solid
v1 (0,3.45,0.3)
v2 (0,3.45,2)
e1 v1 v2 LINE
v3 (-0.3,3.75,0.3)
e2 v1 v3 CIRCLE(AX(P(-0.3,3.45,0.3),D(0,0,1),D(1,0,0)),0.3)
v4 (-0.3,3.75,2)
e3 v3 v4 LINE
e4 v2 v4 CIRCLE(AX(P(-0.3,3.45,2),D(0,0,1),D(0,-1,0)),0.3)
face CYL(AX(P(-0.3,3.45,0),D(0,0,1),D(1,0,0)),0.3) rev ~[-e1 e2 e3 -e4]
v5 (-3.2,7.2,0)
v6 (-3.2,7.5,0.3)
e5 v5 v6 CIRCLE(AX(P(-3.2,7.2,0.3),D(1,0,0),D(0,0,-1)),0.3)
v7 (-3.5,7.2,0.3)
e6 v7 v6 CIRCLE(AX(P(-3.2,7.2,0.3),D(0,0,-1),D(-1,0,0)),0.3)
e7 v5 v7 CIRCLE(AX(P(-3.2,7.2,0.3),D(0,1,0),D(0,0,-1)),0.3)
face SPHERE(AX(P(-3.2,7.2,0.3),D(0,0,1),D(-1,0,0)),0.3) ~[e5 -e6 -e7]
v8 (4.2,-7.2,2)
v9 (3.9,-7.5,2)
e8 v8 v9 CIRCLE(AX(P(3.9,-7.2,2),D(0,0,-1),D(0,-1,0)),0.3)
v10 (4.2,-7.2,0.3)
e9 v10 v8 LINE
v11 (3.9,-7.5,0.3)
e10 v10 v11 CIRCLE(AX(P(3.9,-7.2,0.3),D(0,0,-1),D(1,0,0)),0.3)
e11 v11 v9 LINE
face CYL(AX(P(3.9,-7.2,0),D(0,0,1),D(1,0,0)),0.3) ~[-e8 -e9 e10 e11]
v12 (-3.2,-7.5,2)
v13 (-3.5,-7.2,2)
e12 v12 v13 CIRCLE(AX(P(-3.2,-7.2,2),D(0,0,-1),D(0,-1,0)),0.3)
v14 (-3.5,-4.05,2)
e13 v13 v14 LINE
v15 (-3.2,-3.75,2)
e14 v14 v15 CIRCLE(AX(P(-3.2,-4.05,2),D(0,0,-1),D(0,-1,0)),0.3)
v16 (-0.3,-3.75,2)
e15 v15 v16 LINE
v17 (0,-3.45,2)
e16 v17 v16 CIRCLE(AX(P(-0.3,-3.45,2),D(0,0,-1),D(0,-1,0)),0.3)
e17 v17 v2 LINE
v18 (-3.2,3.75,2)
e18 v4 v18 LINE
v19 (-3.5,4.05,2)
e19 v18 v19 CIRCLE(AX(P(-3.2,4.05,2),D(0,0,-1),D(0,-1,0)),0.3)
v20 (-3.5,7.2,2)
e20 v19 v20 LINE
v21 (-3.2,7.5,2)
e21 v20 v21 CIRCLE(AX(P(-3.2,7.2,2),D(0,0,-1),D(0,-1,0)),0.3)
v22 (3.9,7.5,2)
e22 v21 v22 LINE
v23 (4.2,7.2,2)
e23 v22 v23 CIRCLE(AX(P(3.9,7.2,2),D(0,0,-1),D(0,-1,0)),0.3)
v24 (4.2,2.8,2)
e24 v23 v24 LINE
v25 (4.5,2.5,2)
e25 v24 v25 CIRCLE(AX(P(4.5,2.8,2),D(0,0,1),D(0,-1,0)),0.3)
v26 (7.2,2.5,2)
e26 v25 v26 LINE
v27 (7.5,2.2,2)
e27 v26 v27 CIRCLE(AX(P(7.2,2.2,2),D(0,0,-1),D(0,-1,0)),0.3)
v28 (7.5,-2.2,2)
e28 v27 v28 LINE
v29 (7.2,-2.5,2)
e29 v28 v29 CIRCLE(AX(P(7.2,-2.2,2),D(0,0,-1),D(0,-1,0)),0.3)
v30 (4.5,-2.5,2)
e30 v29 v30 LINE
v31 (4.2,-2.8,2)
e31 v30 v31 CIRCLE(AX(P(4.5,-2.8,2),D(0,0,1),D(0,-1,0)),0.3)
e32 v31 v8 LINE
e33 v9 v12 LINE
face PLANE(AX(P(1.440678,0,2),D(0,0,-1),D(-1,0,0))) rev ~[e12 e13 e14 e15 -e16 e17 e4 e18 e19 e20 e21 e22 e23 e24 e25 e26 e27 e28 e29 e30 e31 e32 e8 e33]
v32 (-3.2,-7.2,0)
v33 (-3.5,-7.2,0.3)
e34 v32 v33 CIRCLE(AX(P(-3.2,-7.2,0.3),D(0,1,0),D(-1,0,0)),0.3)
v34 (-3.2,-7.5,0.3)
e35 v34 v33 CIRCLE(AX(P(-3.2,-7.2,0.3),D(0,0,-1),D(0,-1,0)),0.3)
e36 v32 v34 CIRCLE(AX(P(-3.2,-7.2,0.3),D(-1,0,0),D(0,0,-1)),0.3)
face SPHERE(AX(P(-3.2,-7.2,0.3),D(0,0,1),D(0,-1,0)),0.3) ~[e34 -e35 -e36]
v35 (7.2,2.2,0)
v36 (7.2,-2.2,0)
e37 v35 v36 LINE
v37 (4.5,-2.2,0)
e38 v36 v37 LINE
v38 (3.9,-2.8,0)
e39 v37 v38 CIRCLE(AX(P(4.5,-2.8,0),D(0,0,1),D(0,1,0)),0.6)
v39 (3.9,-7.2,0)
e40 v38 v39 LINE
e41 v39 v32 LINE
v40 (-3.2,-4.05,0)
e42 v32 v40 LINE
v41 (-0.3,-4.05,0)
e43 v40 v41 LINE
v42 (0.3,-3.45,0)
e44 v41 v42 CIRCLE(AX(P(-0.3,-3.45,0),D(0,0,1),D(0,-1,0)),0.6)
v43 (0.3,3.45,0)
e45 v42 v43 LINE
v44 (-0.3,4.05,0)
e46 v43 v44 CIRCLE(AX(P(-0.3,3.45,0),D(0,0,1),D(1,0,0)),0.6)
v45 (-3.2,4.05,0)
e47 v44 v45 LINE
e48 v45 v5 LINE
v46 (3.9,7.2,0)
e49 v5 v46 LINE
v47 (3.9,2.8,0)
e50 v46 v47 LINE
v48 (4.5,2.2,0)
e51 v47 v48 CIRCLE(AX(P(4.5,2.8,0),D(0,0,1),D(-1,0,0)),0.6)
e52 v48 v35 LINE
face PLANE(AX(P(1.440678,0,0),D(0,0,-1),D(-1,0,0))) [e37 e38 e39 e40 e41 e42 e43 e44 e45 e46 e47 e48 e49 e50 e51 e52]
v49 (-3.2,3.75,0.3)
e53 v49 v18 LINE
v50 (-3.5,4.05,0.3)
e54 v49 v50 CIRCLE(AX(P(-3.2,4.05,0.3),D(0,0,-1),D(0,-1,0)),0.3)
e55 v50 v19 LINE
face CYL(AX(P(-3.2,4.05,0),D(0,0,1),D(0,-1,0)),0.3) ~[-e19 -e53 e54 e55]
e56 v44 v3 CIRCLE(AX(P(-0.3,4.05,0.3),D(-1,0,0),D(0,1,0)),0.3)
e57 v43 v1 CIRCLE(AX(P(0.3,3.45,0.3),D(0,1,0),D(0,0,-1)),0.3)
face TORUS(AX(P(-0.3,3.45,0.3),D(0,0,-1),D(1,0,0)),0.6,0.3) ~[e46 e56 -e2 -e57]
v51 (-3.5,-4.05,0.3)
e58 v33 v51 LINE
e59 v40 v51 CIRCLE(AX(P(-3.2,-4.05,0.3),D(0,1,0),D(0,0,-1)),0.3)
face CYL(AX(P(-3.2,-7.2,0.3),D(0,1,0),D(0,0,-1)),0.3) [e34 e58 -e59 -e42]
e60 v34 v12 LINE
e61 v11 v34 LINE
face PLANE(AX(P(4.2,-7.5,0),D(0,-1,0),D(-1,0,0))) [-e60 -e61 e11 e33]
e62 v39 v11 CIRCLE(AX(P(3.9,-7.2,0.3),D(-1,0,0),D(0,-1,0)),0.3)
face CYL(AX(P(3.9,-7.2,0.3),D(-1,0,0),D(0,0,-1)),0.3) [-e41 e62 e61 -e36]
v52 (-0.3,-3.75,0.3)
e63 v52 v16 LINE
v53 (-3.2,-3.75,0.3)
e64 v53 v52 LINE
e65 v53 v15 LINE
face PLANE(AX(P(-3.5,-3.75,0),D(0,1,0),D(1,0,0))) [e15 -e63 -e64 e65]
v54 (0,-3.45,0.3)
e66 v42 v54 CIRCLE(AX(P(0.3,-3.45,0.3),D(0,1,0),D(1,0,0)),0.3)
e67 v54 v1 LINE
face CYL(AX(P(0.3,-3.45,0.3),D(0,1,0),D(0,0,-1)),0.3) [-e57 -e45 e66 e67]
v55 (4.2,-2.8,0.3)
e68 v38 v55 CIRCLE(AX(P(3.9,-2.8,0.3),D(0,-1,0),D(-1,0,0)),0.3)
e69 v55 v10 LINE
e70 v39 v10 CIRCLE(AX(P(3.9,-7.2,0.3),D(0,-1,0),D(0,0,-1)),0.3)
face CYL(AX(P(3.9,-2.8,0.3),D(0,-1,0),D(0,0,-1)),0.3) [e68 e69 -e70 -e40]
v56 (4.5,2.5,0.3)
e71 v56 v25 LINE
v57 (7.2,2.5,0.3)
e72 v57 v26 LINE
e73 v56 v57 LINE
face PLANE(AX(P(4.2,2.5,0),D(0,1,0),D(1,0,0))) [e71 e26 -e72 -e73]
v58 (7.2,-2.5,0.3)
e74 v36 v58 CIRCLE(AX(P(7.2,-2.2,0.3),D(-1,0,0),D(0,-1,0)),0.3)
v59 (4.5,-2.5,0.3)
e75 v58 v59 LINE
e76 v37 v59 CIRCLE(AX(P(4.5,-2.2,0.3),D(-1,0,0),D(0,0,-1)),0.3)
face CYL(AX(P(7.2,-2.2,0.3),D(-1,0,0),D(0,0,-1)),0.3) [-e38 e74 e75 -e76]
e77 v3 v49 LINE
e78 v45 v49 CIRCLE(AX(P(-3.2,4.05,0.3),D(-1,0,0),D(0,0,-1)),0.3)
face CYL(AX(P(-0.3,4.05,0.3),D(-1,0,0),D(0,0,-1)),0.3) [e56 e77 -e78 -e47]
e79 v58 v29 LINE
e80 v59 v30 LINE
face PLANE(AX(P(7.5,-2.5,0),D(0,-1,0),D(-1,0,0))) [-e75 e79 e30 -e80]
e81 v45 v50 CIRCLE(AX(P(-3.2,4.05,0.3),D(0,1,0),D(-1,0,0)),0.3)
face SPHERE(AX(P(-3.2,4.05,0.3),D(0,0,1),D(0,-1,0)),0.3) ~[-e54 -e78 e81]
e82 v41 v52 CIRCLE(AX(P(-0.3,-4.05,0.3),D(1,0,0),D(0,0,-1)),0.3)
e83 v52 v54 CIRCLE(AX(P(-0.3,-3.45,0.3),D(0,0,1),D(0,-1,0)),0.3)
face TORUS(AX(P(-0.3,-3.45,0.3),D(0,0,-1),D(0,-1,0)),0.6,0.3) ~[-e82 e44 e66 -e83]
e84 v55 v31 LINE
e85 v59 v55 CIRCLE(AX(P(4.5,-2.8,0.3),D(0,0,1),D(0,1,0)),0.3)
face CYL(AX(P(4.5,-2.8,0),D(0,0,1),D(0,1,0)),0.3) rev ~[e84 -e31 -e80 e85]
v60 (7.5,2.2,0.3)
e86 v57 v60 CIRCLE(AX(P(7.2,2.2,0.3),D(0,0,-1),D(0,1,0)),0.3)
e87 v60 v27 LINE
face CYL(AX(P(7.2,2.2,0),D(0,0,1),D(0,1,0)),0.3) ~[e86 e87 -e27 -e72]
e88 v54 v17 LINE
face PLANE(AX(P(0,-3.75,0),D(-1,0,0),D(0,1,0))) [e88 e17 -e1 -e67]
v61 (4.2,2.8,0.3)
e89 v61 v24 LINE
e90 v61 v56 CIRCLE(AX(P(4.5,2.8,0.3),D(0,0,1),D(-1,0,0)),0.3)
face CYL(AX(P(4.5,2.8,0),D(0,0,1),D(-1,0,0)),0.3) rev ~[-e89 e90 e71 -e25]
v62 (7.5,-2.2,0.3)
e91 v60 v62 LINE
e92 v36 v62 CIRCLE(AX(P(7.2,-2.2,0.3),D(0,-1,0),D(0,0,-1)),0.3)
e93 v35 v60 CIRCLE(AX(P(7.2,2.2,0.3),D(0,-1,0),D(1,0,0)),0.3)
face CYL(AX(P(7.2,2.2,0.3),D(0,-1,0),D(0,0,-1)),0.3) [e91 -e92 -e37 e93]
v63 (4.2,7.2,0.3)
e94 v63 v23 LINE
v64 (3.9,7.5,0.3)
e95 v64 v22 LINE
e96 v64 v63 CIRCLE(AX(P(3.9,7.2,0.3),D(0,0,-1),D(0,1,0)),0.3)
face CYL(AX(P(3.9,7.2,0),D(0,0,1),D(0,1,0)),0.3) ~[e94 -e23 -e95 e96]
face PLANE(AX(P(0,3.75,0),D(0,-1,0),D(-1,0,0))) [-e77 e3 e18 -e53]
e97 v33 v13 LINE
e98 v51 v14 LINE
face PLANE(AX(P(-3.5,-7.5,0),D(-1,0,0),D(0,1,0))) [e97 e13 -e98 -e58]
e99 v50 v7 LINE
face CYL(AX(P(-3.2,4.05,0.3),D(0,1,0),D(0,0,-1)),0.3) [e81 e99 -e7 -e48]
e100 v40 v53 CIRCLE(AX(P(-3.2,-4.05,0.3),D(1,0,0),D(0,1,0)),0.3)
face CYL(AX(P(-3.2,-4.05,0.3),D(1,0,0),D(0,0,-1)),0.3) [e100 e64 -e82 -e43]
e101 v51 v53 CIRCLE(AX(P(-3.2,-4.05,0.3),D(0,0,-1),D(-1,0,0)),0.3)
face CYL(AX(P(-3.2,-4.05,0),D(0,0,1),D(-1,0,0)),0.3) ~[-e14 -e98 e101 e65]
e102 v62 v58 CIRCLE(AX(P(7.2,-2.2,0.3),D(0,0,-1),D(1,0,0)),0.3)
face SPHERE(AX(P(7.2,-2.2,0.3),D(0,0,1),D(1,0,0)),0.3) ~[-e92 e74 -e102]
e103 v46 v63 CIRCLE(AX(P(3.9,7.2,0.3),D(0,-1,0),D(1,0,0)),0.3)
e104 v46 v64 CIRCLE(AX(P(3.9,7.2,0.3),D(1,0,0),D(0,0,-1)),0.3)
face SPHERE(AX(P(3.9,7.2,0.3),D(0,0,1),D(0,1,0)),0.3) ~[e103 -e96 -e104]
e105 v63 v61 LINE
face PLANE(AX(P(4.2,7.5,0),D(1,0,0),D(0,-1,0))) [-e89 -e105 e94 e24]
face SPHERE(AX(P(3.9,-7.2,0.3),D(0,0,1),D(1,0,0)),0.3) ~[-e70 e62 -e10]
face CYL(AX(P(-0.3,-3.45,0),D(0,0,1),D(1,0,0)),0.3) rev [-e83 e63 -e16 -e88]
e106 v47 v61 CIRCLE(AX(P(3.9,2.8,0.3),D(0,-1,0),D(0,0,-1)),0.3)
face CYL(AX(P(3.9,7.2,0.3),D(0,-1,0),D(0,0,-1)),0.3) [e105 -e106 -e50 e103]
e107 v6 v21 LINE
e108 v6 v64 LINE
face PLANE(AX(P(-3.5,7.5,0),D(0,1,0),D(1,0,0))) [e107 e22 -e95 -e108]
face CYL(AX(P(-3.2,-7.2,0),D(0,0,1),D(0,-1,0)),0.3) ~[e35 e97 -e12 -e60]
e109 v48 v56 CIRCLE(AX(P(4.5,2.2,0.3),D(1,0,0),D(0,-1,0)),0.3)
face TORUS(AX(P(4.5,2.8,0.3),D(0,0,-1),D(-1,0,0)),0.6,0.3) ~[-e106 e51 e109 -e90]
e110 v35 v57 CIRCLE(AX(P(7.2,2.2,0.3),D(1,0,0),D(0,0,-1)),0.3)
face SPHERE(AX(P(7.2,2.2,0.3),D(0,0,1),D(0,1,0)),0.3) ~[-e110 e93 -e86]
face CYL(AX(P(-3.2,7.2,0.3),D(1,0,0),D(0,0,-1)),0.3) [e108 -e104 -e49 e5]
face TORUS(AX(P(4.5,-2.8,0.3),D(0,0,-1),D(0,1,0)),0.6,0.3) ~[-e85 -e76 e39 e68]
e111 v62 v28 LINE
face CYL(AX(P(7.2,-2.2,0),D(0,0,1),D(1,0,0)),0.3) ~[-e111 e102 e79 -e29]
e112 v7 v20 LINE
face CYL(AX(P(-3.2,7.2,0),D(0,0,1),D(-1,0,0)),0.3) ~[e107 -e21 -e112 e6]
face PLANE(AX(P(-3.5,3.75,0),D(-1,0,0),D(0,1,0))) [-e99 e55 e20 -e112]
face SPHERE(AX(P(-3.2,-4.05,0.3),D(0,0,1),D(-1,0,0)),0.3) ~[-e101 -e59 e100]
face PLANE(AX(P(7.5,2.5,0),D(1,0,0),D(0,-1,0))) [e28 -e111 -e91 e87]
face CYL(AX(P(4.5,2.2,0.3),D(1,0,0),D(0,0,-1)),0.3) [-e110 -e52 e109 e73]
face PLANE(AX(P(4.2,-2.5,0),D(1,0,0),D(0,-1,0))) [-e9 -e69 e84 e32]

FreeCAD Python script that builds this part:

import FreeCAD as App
import Part
import Sketcher

V = App.Vector
Q = App.Units.Quantity


def edges_at(feature, points):
    """Names of the edges that pass closest to the given points."""
    edges = feature.Shape.Edges
    near = lambda p: min(range(len(edges)), key=lambda i: edges[i].distToShape(Part.Vertex(*p))[0])
    return sorted({f"Edge{near(p) + 1}" for p in points})

doc = App.newDocument("Part")
body = doc.addObject("PartDesign::Body", "Body")

sketch1 = body.newObject("Sketcher::SketchObject", "Sketch")
sketch1.AttachmentSupport = (doc.getObject("XY_Plane"), [""])
sketch1.MapMode = "FlatFace"
sketch1.addGeometry(Part.LineSegment(V(0, 3.8, 0), V(0, -3.8, 0)), False)
sketch1.addGeometry(Part.LineSegment(V(0, -3.8, 0), V(-3.5, -3.8, 0)), False)
sketch1.addGeometry(Part.LineSegment(V(-3.5, -3.8, 0), V(-3.5, -7.5, 0)), False)
sketch1.addGeometry(Part.LineSegment(V(-3.5, -7.5, 0), V(4.2, -7.5, 0)), False)
sketch1.addGeometry(Part.LineSegment(V(4.2, -7.5, 0), V(4.2, -2.5, 0)), False)
sketch1.addGeometry(Part.LineSegment(V(4.2, -2.5, 0), V(7.5, -2.5, 0)), False)
sketch1.addGeometry(Part.LineSegment(V(7.5, -2.5, 0), V(7.5, 2.5, 0)), False)
sketch1.addGeometry(Part.LineSegment(V(7.5, 2.5, 0), V(4.2, 2.5, 0)), False)
sketch1.addGeometry(Part.LineSegment(V(4.2, 2.5, 0), V(4.2, 7.5, 0)), False)
sketch1.addGeometry(Part.LineSegment(V(4.2, 7.5, 0), V(-3.5, 7.5, 0)), False)
sketch1.addGeometry(Part.LineSegment(V(-3.5, 7.5, 0), V(-3.5, 3.8, 0)), False)
sketch1.addGeometry(Part.LineSegment(V(-3.5, 3.8, 0), V(0, 3.8, 0)), False)
sketch1.addConstraint(Sketcher.Constraint("Coincident", 0, 2, 1, 1))
sketch1.addConstraint(Sketcher.Constraint("Coincident", 1, 2, 2, 1))
sketch1.addConstraint(Sketcher.Constraint("Coincident", 2, 2, 3, 1))
sketch1.addConstraint(Sketcher.Constraint("Coincident", 3, 2, 4, 1))
sketch1.addConstraint(Sketcher.Constraint("Coincident", 4, 2, 5, 1))
sketch1.addConstraint(Sketcher.Constraint("Coincident", 5, 2, 6, 1))
sketch1.addConstraint(Sketcher.Constraint("Coincident", 6, 2, 7, 1))
sketch1.addConstraint(Sketcher.Constraint("Coincident", 7, 2, 8, 1))
sketch1.addConstraint(Sketcher.Constraint("Coincident", 8, 2, 9, 1))
sketch1.addConstraint(Sketcher.Constraint("Coincident", 9, 2, 10, 1))
sketch1.addConstraint(Sketcher.Constraint("Coincident", 10, 2, 11, 1))
sketch1.addConstraint(Sketcher.Constraint("Coincident", 11, 2, 0, 1))
sketch1.addConstraint(Sketcher.Constraint("Vertical", 0))
sketch1.addConstraint(Sketcher.Constraint("Horizontal", 1))
sketch1.addConstraint(Sketcher.Constraint("Vertical", 2))
sketch1.addConstraint(Sketcher.Constraint("Horizontal", 3))
sketch1.addConstraint(Sketcher.Constraint("Vertical", 4))
sketch1.addConstraint(Sketcher.Constraint("Horizontal", 5))
sketch1.addConstraint(Sketcher.Constraint("Vertical", 6))
sketch1.addConstraint(Sketcher.Constraint("Horizontal", 7))
sketch1.addConstraint(Sketcher.Constraint("Vertical", 8))
sketch1.addConstraint(Sketcher.Constraint("Horizontal", 9))
sketch1.addConstraint(Sketcher.Constraint("Vertical", 10))
sketch1.addConstraint(Sketcher.Constraint("Horizontal", 11))
sketch1.addConstraint(Sketcher.Constraint("Symmetric", 0, 2, 11, 2, -1, 1))
sketch1.addConstraint(Sketcher.Constraint("Symmetric", 4, 2, 7, 2, -1))
sketch1.addConstraint(Sketcher.Constraint("Symmetric", 2, 2, 9, 2, -1))
sketch1.addConstraint(Sketcher.Constraint("Equal", 4, 6))
sketch1.addConstraint(Sketcher.Constraint("DistanceY", 4, 1, 4, 2, Q("5 mm")))
sketch1.addConstraint(Sketcher.Constraint("DistanceX", 1, 2, 1, 1, Q("3.5 mm")))
sketch1.addConstraint(Sketcher.Constraint("DistanceX", 3, 1, 3, 2, Q("7.7 mm")))
sketch1.addConstraint(Sketcher.Constraint("DistanceX", 5, 1, 5, 2, Q("3.3 mm")))
sketch1.addConstraint(Sketcher.Constraint("DistanceY", 0, 2, 0, 1, Q("7.5 mm")))
pad1 = body.newObject("PartDesign::Pad", "Pad")
pad1.Profile = sketch1
pad1.Length = 2
doc.recompute()

fillet = body.newObject("PartDesign::Fillet", "Fillet")
fillet.Base = (pad1, edges_at(pad1, [
    (4.2, 7.5, 1),
    (4.2, 2.5, 1),
    (7.5, 2.5, 1),
    (7.5, -2.5, 1),
    (4.2, -2.5, 1),
    (4.2, -7.5, 1),
    (-3.5, -7.5, 1),
    (-3.5, -3.75, 1),
    (0, -3.75, 1),
    (0, 3.75, 1),
    (-3.5, 3.75, 1),
    (-3.5, 7.5, 1),
]))
fillet.Radius = 0.3
doc.recompute()

fillet2 = body.newObject("PartDesign::Fillet", "Fillet001")
fillet2.Base = (fillet, edges_at(fillet, [
    (0.35, 7.5, 0),
    (4.2, 5, 0),
    (5.85, 2.5, 0),
    (7.5, 0, 0),
    (5.85, -2.5, 0),
    (4.2, -5, 0),
    (0.35, -7.5, 0),
    (-3.5, -5.625, 0),
    (-1.75, -3.75, 0),
    (0, 0, 0),
    (-1.75, 3.75, 0),
    (-3.5, 5.625, 0),
    (7.412, -2.412, 0),
    (4.112, -7.412, 0),
    (-3.412, -7.412, 0),
    (-3.412, -3.838, 0),
    (-3.412, 3.838, 0),
    (-3.412, 7.412, 0),
    (7.412, 2.412, 0),
    (4.112, 7.412, 0),
    (4.288, 2.588, 0),
    (-0.088, 3.662, 0),
    (-0.088, -3.662, 0),
    (4.288, -2.588, 0),
]))
fillet2.Radius = 0.3

doc.recompute()
